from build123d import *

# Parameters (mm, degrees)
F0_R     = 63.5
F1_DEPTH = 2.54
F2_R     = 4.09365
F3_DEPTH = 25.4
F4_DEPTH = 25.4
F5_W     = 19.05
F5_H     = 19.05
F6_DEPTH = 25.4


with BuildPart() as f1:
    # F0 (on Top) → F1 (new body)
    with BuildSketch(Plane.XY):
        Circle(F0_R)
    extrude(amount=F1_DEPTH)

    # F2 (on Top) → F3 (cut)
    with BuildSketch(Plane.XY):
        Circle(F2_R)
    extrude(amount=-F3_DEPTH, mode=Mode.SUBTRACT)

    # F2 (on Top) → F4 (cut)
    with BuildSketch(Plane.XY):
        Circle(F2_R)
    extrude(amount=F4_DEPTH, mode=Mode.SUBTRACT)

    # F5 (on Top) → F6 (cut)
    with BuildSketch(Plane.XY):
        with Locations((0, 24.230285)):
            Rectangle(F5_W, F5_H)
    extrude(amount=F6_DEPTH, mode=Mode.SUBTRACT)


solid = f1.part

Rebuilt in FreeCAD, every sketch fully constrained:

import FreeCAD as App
import Part
import Sketcher
from FreeCAD import Vector
Q = App.Units.Quantity

doc = App.newDocument("Part")
body = doc.addObject("PartDesign::Body", "Body")

# Sketch on XY plane
sketch1 = body.newObject("Sketcher::SketchObject", "Sketch")
sketch1.AttachmentSupport = (doc.getObject("XY_Plane"), [""])
sketch1.MapMode = "FlatFace"
sketch1.addGeometry(Part.Circle(Vector(0, 0, 0), Vector(0, 0, 1), 64), False)
sketch1.addConstraint(Sketcher.Constraint("Coincident", 0, 3, -1, 1))
sketch1.addConstraint(Sketcher.Constraint("Diameter", 0, Q("5 in")))
pad1 = body.newObject("PartDesign::Pad", "Pad")
pad1.Profile = sketch1
pad1.Length = Q("0.1 in")

# Sketch on XY plane
sketch2 = body.newObject("Sketcher::SketchObject", "Sketch001")
sketch2.AttachmentSupport = (doc.getObject("XY_Plane"), [""])
sketch2.MapMode = "FlatFace"
sketch2.addGeometry(Part.Circle(Vector(0, 0, 0), Vector(0, 0, 1), 4.1), False)
sketch2.addConstraint(Sketcher.Constraint("Coincident", 0, 3, -1, 1))
sketch2.addConstraint(Sketcher.Constraint("Diameter", 0, Q("8.1873 mm")))
pocket1 = body.newObject("PartDesign::Pocket", "Pocket")
pocket1.Profile = sketch2
pocket1.Length = Q("1 in")

# Sketch on XY plane
sketch3 = body.newObject("Sketcher::SketchObject", "Sketch002")
sketch3.AttachmentSupport = (doc.getObject("XY_Plane"), [""])
sketch3.MapMode = "FlatFace"
sketch3.addGeometry(Part.Circle(Vector(0, 0, 0), Vector(0, 0, 1), 4.1), False)
sketch3.addConstraint(Sketcher.Constraint("Coincident", 0, 3, -1, 1))
sketch3.addConstraint(Sketcher.Constraint("Diameter", 0, Q("8.1873 mm")))
pocket2 = body.newObject("PartDesign::Pocket", "Pocket001")
pocket2.Profile = sketch3
pocket2.Length = Q("1 in")
pocket2.Reversed = True

# Sketch on XY plane
sketch4 = body.newObject("Sketcher::SketchObject", "Sketch003")
sketch4.AttachmentSupport = (doc.getObject("XY_Plane"), [""])
sketch4.MapMode = "FlatFace"
sketch4.addGeometry(Part.LineSegment(Vector(-10, 34, 0), Vector(-10, 15, 0)), False)
sketch4.addGeometry(Part.LineSegment(Vector(-10, 15, 0), Vector(10, 15, 0)), False)
sketch4.addGeometry(Part.LineSegment(Vector(10, 15, 0), Vector(10, 34, 0)), False)
sketch4.addGeometry(Part.LineSegment(Vector(10, 34, 0), Vector(-10, 34, 0)), False)
sketch4.addConstraint(Sketcher.Constraint("Coincident", 0, 2, 1, 1))
sketch4.addConstraint(Sketcher.Constraint("Coincident", 1, 2, 2, 1))
sketch4.addConstraint(Sketcher.Constraint("Coincident", 2, 2, 3, 1))
sketch4.addConstraint(Sketcher.Constraint("Coincident", 3, 2, 0, 1))
sketch4.addConstraint(Sketcher.Constraint("Vertical", 0))
sketch4.addConstraint(Sketcher.Constraint("Horizontal", 1))
sketch4.addConstraint(Sketcher.Constraint("Vertical", 2))
sketch4.addConstraint(Sketcher.Constraint("Horizontal", 3))
sketch4.addConstraint(Sketcher.Constraint("Equal", 3, 0))
sketch4.addConstraint(Sketcher.Constraint("DistanceX", 1, 1, 1, 2, Q("0.75 in")))
sketch4.addConstraint(Sketcher.Constraint("DistanceX", 0, 2, -1, 1, Q("0.375 in")))
sketch4.addConstraint(Sketcher.Constraint("DistanceY", -1, 1, 0, 2, Q("14.705285 mm")))
pocket3 = body.newObject("PartDesign::Pocket", "Pocket002")
pocket3.Profile = sketch4
pocket3.Length = Q("1 in")
pocket3.Reversed = True

doc.recompute()
